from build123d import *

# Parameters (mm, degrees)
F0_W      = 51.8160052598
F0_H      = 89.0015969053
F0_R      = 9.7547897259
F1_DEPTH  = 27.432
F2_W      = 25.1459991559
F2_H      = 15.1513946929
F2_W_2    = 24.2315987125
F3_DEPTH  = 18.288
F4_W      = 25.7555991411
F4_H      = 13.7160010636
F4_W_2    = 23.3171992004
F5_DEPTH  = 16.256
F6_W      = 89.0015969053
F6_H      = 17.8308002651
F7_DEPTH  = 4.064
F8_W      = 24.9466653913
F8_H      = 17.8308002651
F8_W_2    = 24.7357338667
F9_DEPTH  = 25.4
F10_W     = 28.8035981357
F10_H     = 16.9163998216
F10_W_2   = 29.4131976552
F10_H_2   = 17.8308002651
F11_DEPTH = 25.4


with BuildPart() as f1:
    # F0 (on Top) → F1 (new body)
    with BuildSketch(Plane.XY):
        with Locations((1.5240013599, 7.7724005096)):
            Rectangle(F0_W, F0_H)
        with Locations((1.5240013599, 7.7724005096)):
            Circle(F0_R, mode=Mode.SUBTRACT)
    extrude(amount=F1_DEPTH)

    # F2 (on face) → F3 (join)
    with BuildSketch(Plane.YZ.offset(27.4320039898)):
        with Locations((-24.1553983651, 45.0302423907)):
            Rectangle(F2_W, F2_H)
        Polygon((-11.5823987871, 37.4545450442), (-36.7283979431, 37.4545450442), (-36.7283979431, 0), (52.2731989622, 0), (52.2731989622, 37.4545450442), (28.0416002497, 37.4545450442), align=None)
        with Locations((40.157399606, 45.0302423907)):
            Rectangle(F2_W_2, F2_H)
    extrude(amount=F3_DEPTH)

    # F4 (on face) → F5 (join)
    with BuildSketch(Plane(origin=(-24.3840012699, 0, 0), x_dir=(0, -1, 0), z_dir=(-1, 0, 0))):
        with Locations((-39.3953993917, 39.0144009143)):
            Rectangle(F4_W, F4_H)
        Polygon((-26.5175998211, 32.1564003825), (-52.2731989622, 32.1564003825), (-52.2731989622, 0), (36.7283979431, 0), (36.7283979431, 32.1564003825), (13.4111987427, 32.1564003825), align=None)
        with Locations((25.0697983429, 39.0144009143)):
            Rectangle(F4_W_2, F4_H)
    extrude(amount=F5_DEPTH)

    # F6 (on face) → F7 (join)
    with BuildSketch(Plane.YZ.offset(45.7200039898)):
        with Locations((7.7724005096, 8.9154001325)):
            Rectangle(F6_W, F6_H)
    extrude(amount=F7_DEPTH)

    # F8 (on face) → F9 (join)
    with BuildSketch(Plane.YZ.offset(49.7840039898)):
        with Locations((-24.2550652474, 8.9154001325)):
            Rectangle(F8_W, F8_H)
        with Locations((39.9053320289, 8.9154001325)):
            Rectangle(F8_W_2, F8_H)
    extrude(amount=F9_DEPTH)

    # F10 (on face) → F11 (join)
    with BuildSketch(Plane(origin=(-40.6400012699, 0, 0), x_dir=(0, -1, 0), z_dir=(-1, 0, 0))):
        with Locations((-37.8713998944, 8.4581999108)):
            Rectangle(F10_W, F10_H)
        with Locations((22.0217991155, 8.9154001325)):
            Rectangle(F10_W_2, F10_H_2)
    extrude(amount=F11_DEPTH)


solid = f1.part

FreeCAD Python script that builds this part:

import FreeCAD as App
import Part
import Sketcher
from FreeCAD import Vector
Q = App.Units.Quantity

doc = App.newDocument("Part")
body = doc.addObject("PartDesign::Body", "Body")

sketch1 = body.newObject("Sketcher::SketchObject", "Sketch")
sketch1.AttachmentSupport = (doc.getObject("XY_Plane"), [""])
sketch1.MapMode = "FlatFace"
sketch1.addGeometry([
    Part.LineSegment(Vector(-24, 52, 0), Vector(-24, -37, 0)),
    Part.LineSegment(Vector(-24, -37, 0), Vector(27, -37, 0)),
    Part.LineSegment(Vector(27, -37, 0), Vector(27, 52, 0)),
    Part.LineSegment(Vector(27, 52, 0), Vector(-24, 52, 0)),
    Part.Circle(Vector(2, 8, 0), Vector(0, 0, 1), 10),
], False)
sketch1.addConstraint([
    Sketcher.Constraint("Coincident", 0, 2, 1, 1),
    Sketcher.Constraint("Coincident", 1, 2, 2, 1),
    Sketcher.Constraint("Coincident", 2, 2, 3, 1),
    Sketcher.Constraint("Coincident", 3, 2, 0, 1),
    Sketcher.Constraint("Vertical", 0),
    Sketcher.Constraint("Horizontal", 1),
    Sketcher.Constraint("Vertical", 2),
    Sketcher.Constraint("Horizontal", 3),
    Sketcher.Constraint("DistanceY", 0, 2, 0, 1, Q("3.5039999 in")),
    Sketcher.Constraint("DistanceX", -1, 1, 4, 3, Q("0.0600001 in")),
    Sketcher.Constraint("DistanceX", 0, 2, -1, 1, Q("0.96 in")),
    Sketcher.Constraint("DistanceX", -1, 1, 1, 2, Q("1.0800002 in")),
    Sketcher.Constraint("Diameter", 4, Q("19.509579 mm")),
    Sketcher.Constraint("DistanceY", -1, 1, 4, 3, Q("0.306 in")),
    Sketcher.Constraint("DistanceY", 0, 2, -1, 1, Q("1.4459999 in")),
])
pad1 = body.newObject("PartDesign::Pad", "Pad")
pad1.Profile = sketch1
pad1.Length = Q("1.08 in")

sketch2 = body.newObject("Sketcher::SketchObject", "Sketch001")
sketch2.AttachmentSupport = (doc.getObject("YZ_Plane"), [""])
sketch2.MapMode = "FlatFace"
sketch2.AttachmentOffset = App.Placement(Vector(0, 0, 1.0800002 * 25.4), App.Rotation())
sketch2.addGeometry([
    Part.LineSegment(Vector(-37, 53, 0), Vector(-37, 0, 0)),
    Part.LineSegment(Vector(-37, 0, 0), Vector(52, 0, 0)),
    Part.LineSegment(Vector(52, 0, 0), Vector(52, 53, 0)),
    Part.LineSegment(Vector(52, 53, 0), Vector(28, 53, 0)),
    Part.LineSegment(Vector(28, 53, 0), Vector(28, 37, 0)),
    Part.LineSegment(Vector(28, 37, 0), Vector(-12, 37, 0)),
    Part.LineSegment(Vector(-12, 37, 0), Vector(-12, 53, 0)),
    Part.LineSegment(Vector(-12, 53, 0), Vector(-37, 53, 0)),
], False)
sketch2.addConstraint([
    Sketcher.Constraint("Coincident", 0, 2, 1, 1),
    Sketcher.Constraint("Coincident", 1, 2, 2, 1),
    Sketcher.Constraint("Coincident", 2, 2, 3, 1),
    Sketcher.Constraint("Coincident", 3, 2, 4, 1),
    Sketcher.Constraint("Coincident", 4, 2, 5, 1),
    Sketcher.Constraint("Coincident", 5, 2, 6, 1),
    Sketcher.Constraint("Coincident", 6, 2, 7, 1),
    Sketcher.Constraint("Coincident", 7, 2, 0, 1),
    Sketcher.Constraint("Vertical", 0),
    Sketcher.Constraint("Horizontal", 1),
    Sketcher.Constraint("Vertical", 2),
    Sketcher.Constraint("Horizontal", 3),
    Sketcher.Constraint("Vertical", 4),
    Sketcher.Constraint("Horizontal", 5),
    Sketcher.Constraint("Vertical", 6),
    Sketcher.Constraint("Horizontal", 7),
    Sketcher.Constraint("PointOnObject", 0, 2, -1),
    Sketcher.Constraint("Horizontal", 3, 2, 6, 2),
    Sketcher.Constraint("DistanceX", 5, 2, 5, 1, Q("1.56 in")),
    Sketcher.Constraint("DistanceX", 7, 2, 7, 1, Q("0.99 in")),
    Sketcher.Constraint("DistanceX", 1, 1, 1, 2, Q("3.5039999 in")),
    Sketcher.Constraint("DistanceY", 0, 2, 0, 1, Q("2.0711 in")),
    Sketcher.Constraint("DistanceX", 0, 2, -1, 1, Q("1.4459999 in")),
    Sketcher.Constraint("DistanceY", 4, 2, 4, 1, Q("15.151395 mm")),
])
pad2 = body.newObject("PartDesign::Pad", "Pad001")
pad2.Profile = sketch2
pad2.Length = Q("0.72 in")

sketch3 = body.newObject("Sketcher::SketchObject", "Sketch002")
sketch3.AttachmentSupport = (doc.getObject("YZ_Plane"), [""])
sketch3.MapMode = "FlatFace"
sketch3.AttachmentOffset = App.Placement(Vector(0, 0, -0.96 * 25.4), App.Rotation())
sketch3.addGeometry([
    Part.LineSegment(Vector(52, 46, 0), Vector(52, 0, 0)),
    Part.LineSegment(Vector(52, 0, 0), Vector(-37, 0, 0)),
    Part.LineSegment(Vector(-37, 0, 0), Vector(-37, 46, 0)),
    Part.LineSegment(Vector(-37, 46, 0), Vector(-13, 46, 0)),
    Part.LineSegment(Vector(-13, 46, 0), Vector(-13, 32, 0)),
    Part.LineSegment(Vector(-13, 32, 0), Vector(27, 32, 0)),
    Part.LineSegment(Vector(27, 32, 0), Vector(27, 46, 0)),
    Part.LineSegment(Vector(27, 46, 0), Vector(52, 46, 0)),
], False)
sketch3.addConstraint([
    Sketcher.Constraint("Coincident", 0, 2, 1, 1),
    Sketcher.Constraint("Coincident", 1, 2, 2, 1),
    Sketcher.Constraint("Coincident", 2, 2, 3, 1),
    Sketcher.Constraint("Coincident", 3, 2, 4, 1),
    Sketcher.Constraint("Coincident", 4, 2, 5, 1),
    Sketcher.Constraint("Coincident", 5, 2, 6, 1),
    Sketcher.Constraint("Coincident", 6, 2, 7, 1),
    Sketcher.Constraint("Coincident", 7, 2, 0, 1),
    Sketcher.Constraint("Vertical", 0),
    Sketcher.Constraint("Horizontal", 1),
    Sketcher.Constraint("Vertical", 2),
    Sketcher.Constraint("Horizontal", 3),
    Sketcher.Constraint("Vertical", 4),
    Sketcher.Constraint("Horizontal", 5),
    Sketcher.Constraint("Vertical", 6),
    Sketcher.Constraint("Horizontal", 7),
    Sketcher.Constraint("PointOnObject", 0, 2, -1),
    Sketcher.Constraint("Horizontal", 3, 2, 6, 2),
    Sketcher.Constraint("DistanceY", 4, 2, 4, 1, Q("0.54 in")),
    Sketcher.Constraint("DistanceX", 1, 2, 1, 1, Q("3.5039999 in")),
    Sketcher.Constraint("DistanceX", 3, 1, 3, 2, Q("0.918 in")),
    Sketcher.Constraint("DistanceX", 5, 1, 5, 2, Q("1.5719999 in")),
    Sketcher.Constraint("DistanceY", 0, 2, 0, 1, Q("1.8060001 in")),
    Sketcher.Constraint("DistanceX", -1, 1, 0, 2, Q("2.058 in")),
])
pad3 = body.newObject("PartDesign::Pad", "Pad002")
pad3.Profile = sketch3
pad3.Length = Q("0.64 in")
pad3.Reversed = True

sketch4 = body.newObject("Sketcher::SketchObject", "Sketch003")
sketch4.AttachmentSupport = (doc.getObject("YZ_Plane"), [""])
sketch4.MapMode = "FlatFace"
sketch4.AttachmentOffset = App.Placement(Vector(0, 0, 1.8000002 * 25.4), App.Rotation())
sketch4.addGeometry([
    Part.LineSegment(Vector(-37, 18, 0), Vector(-37, 0, 0)),
    Part.LineSegment(Vector(-37, 0, 0), Vector(52, 0, 0)),
    Part.LineSegment(Vector(52, 0, 0), Vector(52, 18, 0)),
    Part.LineSegment(Vector(52, 18, 0), Vector(-37, 18, 0)),
], False)
sketch4.addConstraint([
    Sketcher.Constraint("Coincident", 0, 2, 1, 1),
    Sketcher.Constraint("Coincident", 1, 2, 2, 1),
    Sketcher.Constraint("Coincident", 2, 2, 3, 1),
    Sketcher.Constraint("Coincident", 3, 2, 0, 1),
    Sketcher.Constraint("Vertical", 0),
    Sketcher.Constraint("Horizontal", 1),
    Sketcher.Constraint("Vertical", 2),
    Sketcher.Constraint("Horizontal", 3),
    Sketcher.Constraint("PointOnObject", 0, 2, -1),
    Sketcher.Constraint("DistanceX", 1, 1, 1, 2, Q("3.5039999 in")),
    Sketcher.Constraint("DistanceY", 0, 2, 0, 1, Q("0.702 in")),
    Sketcher.Constraint("DistanceX", 0, 2, -1, 1, Q("1.4459999 in")),
])
pad4 = body.newObject("PartDesign::Pad", "Pad003")
pad4.Profile = sketch4
pad4.Length = Q("0.16 in")

sketch5 = body.newObject("Sketcher::SketchObject", "Sketch004")
sketch5.AttachmentSupport = (doc.getObject("YZ_Plane"), [""])
sketch5.MapMode = "FlatFace"
sketch5.AttachmentOffset = App.Placement(Vector(0, 0, 1.9600002 * 25.4), App.Rotation())
sketch5.addGeometry([
    Part.LineSegment(Vector(-37, 18, 0), Vector(-37, 0, 0)),
    Part.LineSegment(Vector(-37, 0, 0), Vector(-12, 0, 0)),
    Part.LineSegment(Vector(-12, 0, 0), Vector(-12, 18, 0)),
    Part.LineSegment(Vector(-12, 18, 0), Vector(-37, 18, 0)),
    Part.LineSegment(Vector(28, 18, 0), Vector(28, 0, 0)),
    Part.LineSegment(Vector(28, 0, 0), Vector(52, 0, 0)),
    Part.LineSegment(Vector(52, 0, 0), Vector(52, 18, 0)),
    Part.LineSegment(Vector(52, 18, 0), Vector(28, 18, 0)),
], False)
sketch5.addConstraint([
    Sketcher.Constraint("Coincident", 0, 2, 1, 1),
    Sketcher.Constraint("Coincident", 1, 2, 2, 1),
    Sketcher.Constraint("Coincident", 2, 2, 3, 1),
    Sketcher.Constraint("Coincident", 3, 2, 0, 1),
    Sketcher.Constraint("Coincident", 4, 2, 5, 1),
    Sketcher.Constraint("Coincident", 5, 2, 6, 1),
    Sketcher.Constraint("Coincident", 6, 2, 7, 1),
    Sketcher.Constraint("Coincident", 7, 2, 4, 1),
    Sketcher.Constraint("Vertical", 0),
    Sketcher.Constraint("Horizontal", 1),
    Sketcher.Constraint("Vertical", 2),
    Sketcher.Constraint("Horizontal", 3),
    Sketcher.Constraint("Vertical", 4),
    Sketcher.Constraint("Horizontal", 5),
    Sketcher.Constraint("Vertical", 6),
    Sketcher.Constraint("Horizontal", 7),
    Sketcher.Constraint("PointOnObject", 0, 2, -1),
    Sketcher.Constraint("PointOnObject", 4, 2, -1),
    Sketcher.Constraint("Horizontal", 3, 2, 6, 2),
    Sketcher.Constraint("DistanceY", 0, 2, 0, 1, Q("0.702 in")),
    Sketcher.Constraint("DistanceX", 0, 2, -1, 1, Q("1.4459999 in")),
    Sketcher.Constraint("DistanceX", -1, 1, 5, 2, Q("2.058 in")),
    Sketcher.Constraint("DistanceX", 1, 2, 4, 2, Q("1.5479999 in")),
    Sketcher.Constraint("DistanceX", 1, 1, 1, 2, Q("24.946665 mm")),
])
pad5 = body.newObject("PartDesign::Pad", "Pad004")
pad5.Profile = sketch5
pad5.Length = Q("1 in")

sketch6 = body.newObject("Sketcher::SketchObject", "Sketch005")
sketch6.AttachmentSupport = (doc.getObject("YZ_Plane"), [""])
sketch6.MapMode = "FlatFace"
sketch6.AttachmentOffset = App.Placement(Vector(0, 0, -1.6000001 * 25.4), App.Rotation())
sketch6.addGeometry([
    Part.LineSegment(Vector(52, 17, 0), Vector(52, 0, 0)),
    Part.LineSegment(Vector(52, 0, 0), Vector(23, 0, 0)),
    Part.LineSegment(Vector(23, 0, 0), Vector(23, 17, 0)),
    Part.LineSegment(Vector(23, 17, 0), Vector(52, 17, 0)),
    Part.LineSegment(Vector(-7, 18, 0), Vector(-7, 0, 0)),
    Part.LineSegment(Vector(-7, 0, 0), Vector(-37, 0, 0)),
    Part.LineSegment(Vector(-37, 0, 0), Vector(-37, 18, 0)),
    Part.LineSegment(Vector(-37, 18, 0), Vector(-7, 18, 0)),
], False)
sketch6.addConstraint([
    Sketcher.Constraint("Coincident", 0, 2, 1, 1),
    Sketcher.Constraint("Coincident", 1, 2, 2, 1),
    Sketcher.Constraint("Coincident", 2, 2, 3, 1),
    Sketcher.Constraint("Coincident", 3, 2, 0, 1),
    Sketcher.Constraint("Coincident", 4, 2, 5, 1),
    Sketcher.Constraint("Coincident", 5, 2, 6, 1),
    Sketcher.Constraint("Coincident", 6, 2, 7, 1),
    Sketcher.Constraint("Coincident", 7, 2, 4, 1),
    Sketcher.Constraint("Vertical", 0),
    Sketcher.Constraint("Horizontal", 1),
    Sketcher.Constraint("Vertical", 2),
    Sketcher.Constraint("Horizontal", 3),
    Sketcher.Constraint("Vertical", 4),
    Sketcher.Constraint("Horizontal", 5),
    Sketcher.Constraint("Vertical", 6),
    Sketcher.Constraint("Horizontal", 7),
    Sketcher.Constraint("PointOnObject", 0, 2, -1),
    Sketcher.Constraint("PointOnObject", 4, 2, -1),
    Sketcher.Constraint("DistanceX", 1, 2, 1, 1, Q("1.1339999 in")),
    Sketcher.Constraint("DistanceX", 5, 2, 5, 1, Q("1.1579999 in")),
    Sketcher.Constraint("DistanceY", 0, 2, 0, 1, Q("0.666 in")),
    Sketcher.Constraint("DistanceY", 4, 2, 4, 1, Q("0.702 in")),
    Sketcher.Constraint("DistanceX", 5, 2, 1, 2, Q("2.37 in")),
    Sketcher.Constraint("DistanceX", -1, 1, 0, 2, Q("2.058 in")),
])
pad6 = body.newObject("PartDesign::Pad", "Pad005")
pad6.Profile = sketch6
pad6.Length = Q("1 in")
pad6.Reversed = True

doc.recompute()
